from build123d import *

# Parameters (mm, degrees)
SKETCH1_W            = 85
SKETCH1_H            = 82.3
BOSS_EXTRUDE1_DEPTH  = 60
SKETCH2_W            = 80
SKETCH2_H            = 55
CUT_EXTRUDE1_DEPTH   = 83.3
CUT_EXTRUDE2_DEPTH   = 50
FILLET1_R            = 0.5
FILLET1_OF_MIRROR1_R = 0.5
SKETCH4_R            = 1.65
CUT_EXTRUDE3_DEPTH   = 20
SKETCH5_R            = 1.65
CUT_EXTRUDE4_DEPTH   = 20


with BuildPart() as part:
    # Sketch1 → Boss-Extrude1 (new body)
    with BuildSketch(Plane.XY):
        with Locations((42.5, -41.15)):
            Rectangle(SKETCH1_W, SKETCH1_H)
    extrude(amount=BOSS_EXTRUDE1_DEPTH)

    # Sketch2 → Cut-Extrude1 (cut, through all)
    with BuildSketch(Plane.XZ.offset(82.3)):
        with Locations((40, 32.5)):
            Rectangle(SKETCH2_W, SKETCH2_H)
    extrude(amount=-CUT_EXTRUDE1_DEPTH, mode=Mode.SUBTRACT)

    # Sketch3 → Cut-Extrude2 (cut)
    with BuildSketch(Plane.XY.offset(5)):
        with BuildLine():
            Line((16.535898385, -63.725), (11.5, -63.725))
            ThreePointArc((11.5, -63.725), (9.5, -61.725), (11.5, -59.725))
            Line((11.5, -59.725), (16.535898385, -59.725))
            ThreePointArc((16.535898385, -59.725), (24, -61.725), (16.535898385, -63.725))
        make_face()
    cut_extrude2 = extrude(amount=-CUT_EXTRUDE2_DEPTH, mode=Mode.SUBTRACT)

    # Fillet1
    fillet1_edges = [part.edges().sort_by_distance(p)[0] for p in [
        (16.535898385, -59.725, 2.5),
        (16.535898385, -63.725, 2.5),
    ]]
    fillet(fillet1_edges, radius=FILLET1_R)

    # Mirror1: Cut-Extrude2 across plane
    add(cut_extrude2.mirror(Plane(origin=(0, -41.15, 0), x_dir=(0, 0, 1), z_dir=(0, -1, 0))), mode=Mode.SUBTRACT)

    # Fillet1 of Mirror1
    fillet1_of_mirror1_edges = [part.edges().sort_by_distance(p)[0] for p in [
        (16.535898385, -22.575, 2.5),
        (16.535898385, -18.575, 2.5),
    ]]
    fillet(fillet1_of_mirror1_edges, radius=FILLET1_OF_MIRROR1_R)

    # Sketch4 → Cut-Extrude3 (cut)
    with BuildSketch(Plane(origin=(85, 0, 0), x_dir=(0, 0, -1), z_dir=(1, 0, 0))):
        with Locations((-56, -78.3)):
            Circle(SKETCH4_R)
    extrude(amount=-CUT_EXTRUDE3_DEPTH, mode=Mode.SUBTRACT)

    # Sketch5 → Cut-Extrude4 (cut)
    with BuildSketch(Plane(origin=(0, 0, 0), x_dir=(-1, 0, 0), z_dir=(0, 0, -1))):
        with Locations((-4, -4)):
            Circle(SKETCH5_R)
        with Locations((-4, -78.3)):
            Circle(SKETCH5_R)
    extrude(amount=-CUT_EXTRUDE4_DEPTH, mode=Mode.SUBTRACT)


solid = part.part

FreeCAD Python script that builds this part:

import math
import FreeCAD as App
import Part
import Sketcher
Q = App.Units.Quantity


def edges_at(feature, points):
    """Names of the edges that pass closest to the given points."""
    edges = feature.Shape.Edges
    near = lambda p: min(range(len(edges)), key=lambda i: edges[i].distToShape(Part.Vertex(*p))[0])
    return sorted({f"Edge{near(p) + 1}" for p in points})


def add_polygon(sketch, points):
    """Adds a closed chain of lines whose ends are joined by coincident constraints."""
    first, n = sketch.GeometryCount, len(points)
    for a, b in zip(points, points[1:] + points[:1]):
        sketch.addGeometry(Part.LineSegment(App.Vector(*a, 0), App.Vector(*b, 0)), False)
    for i in range(n):
        sketch.addConstraint(Sketcher.Constraint("Coincident", first + i, 2, first + (i + 1) % n, 1))

doc = App.newDocument("Part")
params = doc.addObject("Spreadsheet::Sheet", "Params")
for row, (alias, value) in enumerate([
    ("sketch1_width", "85 mm"),
    ("sketch1_height", "82.3 mm"),
    ("pad1_length", "60 mm"),
    ("sketch2_width", "80 mm"),
    ("sketch2_height", "55 mm"),
    ("sketch3_radius", "4 mm"),
    ("sketch3_radius2", "2 mm"),
    ("pocket2_length", "50 mm"),
    ("fillet_radius", "0.5 mm"),
    ("fillet2_radius", "0.5 mm"),
    ("sketch4_diameter", "3.3 mm"),
    ("pocket3_length", "20 mm"),
    ("sketch5_diameter", "3.3 mm"),
    ("pocket4_length", "20 mm"),
], start=1):
    params.set(f"A{row}", alias)
    params.set(f"B{row}", "=" + value)
    params.setAlias(f"B{row}", alias)

body = doc.addObject("PartDesign::Body", "Body")

sketch1 = body.newObject("Sketcher::SketchObject", "Sketch")
sketch1.AttachmentSupport = (doc.getObject("XY_Plane"), [""])
sketch1.MapMode = "FlatFace"
add_polygon(sketch1, [(0, 0), (0, -82), (85, -82), (85, 0)])
sketch1.addConstraint(Sketcher.Constraint("Vertical", 0))
sketch1.addConstraint(Sketcher.Constraint("Horizontal", 1))
sketch1.addConstraint(Sketcher.Constraint("Vertical", 2))
sketch1.addConstraint(Sketcher.Constraint("Horizontal", 3))
sketch1.addConstraint(Sketcher.Constraint("Coincident", 3, 2, -1, 1))
sketch1.addConstraint(Sketcher.Constraint("DistanceX", 1, 1, 1, 2, Q("85 mm")))
sketch1.addConstraint(Sketcher.Constraint("DistanceY", 0, 2, 0, 1, Q("82.3 mm")))
sketch1.setExpression("Constraints[9]", "Params.sketch1_width")
sketch1.setExpression("Constraints[10]", "Params.sketch1_height")
pad1 = body.newObject("PartDesign::Pad", "Pad")
pad1.Profile = sketch1
pad1.setExpression("Length", "Params.pad1_length")

sketch2 = body.newObject("Sketcher::SketchObject", "Sketch001")
sketch2.AttachmentSupport = (doc.getObject("XZ_Plane"), [""])
sketch2.MapMode = "FlatFace"
sketch2.AttachmentOffset = App.Placement(App.Vector(0, 0, 82.3), App.Rotation())
add_polygon(sketch2, [(0, 60), (0, 5), (80, 5), (80, 60)])
sketch2.addConstraint(Sketcher.Constraint("Vertical", 0))
sketch2.addConstraint(Sketcher.Constraint("Horizontal", 1))
sketch2.addConstraint(Sketcher.Constraint("Vertical", 2))
sketch2.addConstraint(Sketcher.Constraint("Horizontal", 3))
sketch2.addConstraint(Sketcher.Constraint("PointOnObject", 0, 2, -2))
sketch2.addConstraint(Sketcher.Constraint("DistanceX", 1, 1, 1, 2, Q("80 mm")))
sketch2.addConstraint(Sketcher.Constraint("DistanceY", 0, 2, 0, 1, Q("55 mm")))
sketch2.addConstraint(Sketcher.Constraint("DistanceY", -1, 1, 0, 2, Q("5 mm")))
sketch2.setExpression("Constraints[9]", "Params.sketch2_width")
sketch2.setExpression("Constraints[10]", "Params.sketch2_height")
pocket1 = body.newObject("PartDesign::Pocket", "Pocket")
pocket1.Profile = sketch2
pocket1.Type = "ThroughAll"

sketch3 = body.newObject("Sketcher::SketchObject", "Sketch002")
sketch3.AttachmentSupport = (doc.getObject("XY_Plane"), [""])
sketch3.MapMode = "FlatFace"
sketch3.AttachmentOffset = App.Placement(App.Vector(0, 0, 5), App.Rotation())
sketch3.addGeometry(Part.LineSegment(App.Vector(11.5, -63.7, 0), App.Vector(16.5, -63.7, 0)), False)
sketch3.addGeometry(Part.ArcOfCircle(Part.Circle(App.Vector(20, -61.7, 0), App.Vector(0, 0, 1), 4), math.radians(-150), math.radians(150)), False)
sketch3.addGeometry(Part.LineSegment(App.Vector(16.5, -59.7, 0), App.Vector(11.5, -59.7, 0)), False)
sketch3.addGeometry(Part.ArcOfCircle(Part.Circle(App.Vector(11.5, -61.7, 0), App.Vector(0, 0, 1), 2), math.radians(90), math.radians(270)), False)
sketch3.addConstraint(Sketcher.Constraint("Coincident", 0, 2, 1, 1))
sketch3.addConstraint(Sketcher.Constraint("Coincident", 1, 2, 2, 1))
sketch3.addConstraint(Sketcher.Constraint("Tangent", 2, 2, 3, 1))
sketch3.addConstraint(Sketcher.Constraint("Tangent", 3, 2, 0, 1))
sketch3.addConstraint(Sketcher.Constraint("Horizontal", 0))
sketch3.addConstraint(Sketcher.Constraint("Horizontal", 2))
sketch3.addConstraint(Sketcher.Constraint("Horizontal", 1, 3, 3, 3))
sketch3.addConstraint(Sketcher.Constraint("Radius", 1, Q("4 mm")))
sketch3.addConstraint(Sketcher.Constraint("Radius", 3, Q("2 mm")))
sketch3.addConstraint(Sketcher.Constraint("DistanceX", -1, 1, 1, 3, Q("20 mm")))
sketch3.addConstraint(Sketcher.Constraint("DistanceX", -1, 1, 3, 3, Q("11.5 mm")))
sketch3.addConstraint(Sketcher.Constraint("DistanceY", 1, 3, -1, 1, Q("61.725 mm")))
sketch3.setExpression("Constraints[7]", "Params.sketch3_radius")
sketch3.setExpression("Constraints[8]", "Params.sketch3_radius2")
pocket2 = body.newObject("PartDesign::Pocket", "Pocket001")
pocket2.Profile = sketch3
pocket2.setExpression("Length", "Params.pocket2_length")
doc.recompute()

fillet = body.newObject("PartDesign::Fillet", "Fillet")
fillet.Base = (pocket2, edges_at(pocket2, [(16.536, -59.725, 2.5), (16.536, -63.725, 2.5)]))
fillet.setExpression("Radius", "Params.fillet_radius")
doc.recompute()

datumplane = body.newObject("PartDesign::Plane", "DatumPlane")
datumplane.AttachmentSupport = (doc.getObject("XZ_Plane"), [""])
datumplane.MapMode = "FlatFace"
datumplane.AttachmentOffset = App.Placement(App.Vector(0, 0, 41.15), App.Rotation())
mirrored = body.newObject("PartDesign::Mirrored", "Mirrored")
mirrored.Originals = [pocket2]
mirrored.MirrorPlane = (datumplane, [""])
body.Tip = mirrored
doc.recompute()

fillet2 = body.newObject("PartDesign::Fillet", "Fillet001")
fillet2.Base = (mirrored, edges_at(mirrored, [(16.536, -22.575, 2.5), (16.536, -18.575, 2.5)]))
fillet2.setExpression("Radius", "Params.fillet2_radius")

sketch4 = body.newObject("Sketcher::SketchObject", "Sketch003")
sketch4.AttachmentSupport = (doc.getObject("YZ_Plane"), [""])
sketch4.MapMode = "FlatFace"
sketch4.AttachmentOffset = App.Placement(App.Vector(0, 0, 85), App.Rotation())
sketch4.addGeometry(Part.Circle(App.Vector(-78.3, 56, 0), App.Vector(0, 0, 1), 1.6), False)
sketch4.addConstraint(Sketcher.Constraint("Diameter", 0, Q("3.3 mm")))
sketch4.addConstraint(Sketcher.Constraint("DistanceY", -1, 1, 0, 3, Q("56 mm")))
sketch4.addConstraint(Sketcher.Constraint("DistanceX", 0, 3, -1, 1, Q("78.3 mm")))
sketch4.setExpression("Constraints[0]", "Params.sketch4_diameter")
pocket3 = body.newObject("PartDesign::Pocket", "Pocket002")
pocket3.Profile = sketch4
pocket3.setExpression("Length", "Params.pocket3_length")

sketch5 = body.newObject("Sketcher::SketchObject", "Sketch004")
sketch5.AttachmentSupport = (doc.getObject("XY_Plane"), [""])
sketch5.MapMode = "FlatFace"
sketch5.addGeometry(Part.Circle(App.Vector(4, -4, 0), App.Vector(0, 0, 1), 1.6), False)
sketch5.addGeometry(Part.Circle(App.Vector(4, -78.3, 0), App.Vector(0, 0, 1), 1.6), False)
sketch5.addConstraint(Sketcher.Constraint("Equal", 0, 1))
sketch5.addConstraint(Sketcher.Constraint("Vertical", 0, 3, 1, 3))
sketch5.addConstraint(Sketcher.Constraint("Diameter", 0, Q("3.3 mm")))
sketch5.addConstraint(Sketcher.Constraint("DistanceX", -1, 1, 0, 3, Q("4 mm")))
sketch5.addConstraint(Sketcher.Constraint("DistanceY", 0, 3, -1, 1, Q("4 mm")))
sketch5.addConstraint(Sketcher.Constraint("DistanceY", 1, 3, -1, 1, Q("78.3 mm")))
sketch5.setExpression("Constraints[2]", "Params.sketch5_diameter")
pocket4 = body.newObject("PartDesign::Pocket", "Pocket003")
pocket4.Profile = sketch5
pocket4.setExpression("Length", "Params.pocket4_length")
pocket4.Reversed = True

doc.recompute()
